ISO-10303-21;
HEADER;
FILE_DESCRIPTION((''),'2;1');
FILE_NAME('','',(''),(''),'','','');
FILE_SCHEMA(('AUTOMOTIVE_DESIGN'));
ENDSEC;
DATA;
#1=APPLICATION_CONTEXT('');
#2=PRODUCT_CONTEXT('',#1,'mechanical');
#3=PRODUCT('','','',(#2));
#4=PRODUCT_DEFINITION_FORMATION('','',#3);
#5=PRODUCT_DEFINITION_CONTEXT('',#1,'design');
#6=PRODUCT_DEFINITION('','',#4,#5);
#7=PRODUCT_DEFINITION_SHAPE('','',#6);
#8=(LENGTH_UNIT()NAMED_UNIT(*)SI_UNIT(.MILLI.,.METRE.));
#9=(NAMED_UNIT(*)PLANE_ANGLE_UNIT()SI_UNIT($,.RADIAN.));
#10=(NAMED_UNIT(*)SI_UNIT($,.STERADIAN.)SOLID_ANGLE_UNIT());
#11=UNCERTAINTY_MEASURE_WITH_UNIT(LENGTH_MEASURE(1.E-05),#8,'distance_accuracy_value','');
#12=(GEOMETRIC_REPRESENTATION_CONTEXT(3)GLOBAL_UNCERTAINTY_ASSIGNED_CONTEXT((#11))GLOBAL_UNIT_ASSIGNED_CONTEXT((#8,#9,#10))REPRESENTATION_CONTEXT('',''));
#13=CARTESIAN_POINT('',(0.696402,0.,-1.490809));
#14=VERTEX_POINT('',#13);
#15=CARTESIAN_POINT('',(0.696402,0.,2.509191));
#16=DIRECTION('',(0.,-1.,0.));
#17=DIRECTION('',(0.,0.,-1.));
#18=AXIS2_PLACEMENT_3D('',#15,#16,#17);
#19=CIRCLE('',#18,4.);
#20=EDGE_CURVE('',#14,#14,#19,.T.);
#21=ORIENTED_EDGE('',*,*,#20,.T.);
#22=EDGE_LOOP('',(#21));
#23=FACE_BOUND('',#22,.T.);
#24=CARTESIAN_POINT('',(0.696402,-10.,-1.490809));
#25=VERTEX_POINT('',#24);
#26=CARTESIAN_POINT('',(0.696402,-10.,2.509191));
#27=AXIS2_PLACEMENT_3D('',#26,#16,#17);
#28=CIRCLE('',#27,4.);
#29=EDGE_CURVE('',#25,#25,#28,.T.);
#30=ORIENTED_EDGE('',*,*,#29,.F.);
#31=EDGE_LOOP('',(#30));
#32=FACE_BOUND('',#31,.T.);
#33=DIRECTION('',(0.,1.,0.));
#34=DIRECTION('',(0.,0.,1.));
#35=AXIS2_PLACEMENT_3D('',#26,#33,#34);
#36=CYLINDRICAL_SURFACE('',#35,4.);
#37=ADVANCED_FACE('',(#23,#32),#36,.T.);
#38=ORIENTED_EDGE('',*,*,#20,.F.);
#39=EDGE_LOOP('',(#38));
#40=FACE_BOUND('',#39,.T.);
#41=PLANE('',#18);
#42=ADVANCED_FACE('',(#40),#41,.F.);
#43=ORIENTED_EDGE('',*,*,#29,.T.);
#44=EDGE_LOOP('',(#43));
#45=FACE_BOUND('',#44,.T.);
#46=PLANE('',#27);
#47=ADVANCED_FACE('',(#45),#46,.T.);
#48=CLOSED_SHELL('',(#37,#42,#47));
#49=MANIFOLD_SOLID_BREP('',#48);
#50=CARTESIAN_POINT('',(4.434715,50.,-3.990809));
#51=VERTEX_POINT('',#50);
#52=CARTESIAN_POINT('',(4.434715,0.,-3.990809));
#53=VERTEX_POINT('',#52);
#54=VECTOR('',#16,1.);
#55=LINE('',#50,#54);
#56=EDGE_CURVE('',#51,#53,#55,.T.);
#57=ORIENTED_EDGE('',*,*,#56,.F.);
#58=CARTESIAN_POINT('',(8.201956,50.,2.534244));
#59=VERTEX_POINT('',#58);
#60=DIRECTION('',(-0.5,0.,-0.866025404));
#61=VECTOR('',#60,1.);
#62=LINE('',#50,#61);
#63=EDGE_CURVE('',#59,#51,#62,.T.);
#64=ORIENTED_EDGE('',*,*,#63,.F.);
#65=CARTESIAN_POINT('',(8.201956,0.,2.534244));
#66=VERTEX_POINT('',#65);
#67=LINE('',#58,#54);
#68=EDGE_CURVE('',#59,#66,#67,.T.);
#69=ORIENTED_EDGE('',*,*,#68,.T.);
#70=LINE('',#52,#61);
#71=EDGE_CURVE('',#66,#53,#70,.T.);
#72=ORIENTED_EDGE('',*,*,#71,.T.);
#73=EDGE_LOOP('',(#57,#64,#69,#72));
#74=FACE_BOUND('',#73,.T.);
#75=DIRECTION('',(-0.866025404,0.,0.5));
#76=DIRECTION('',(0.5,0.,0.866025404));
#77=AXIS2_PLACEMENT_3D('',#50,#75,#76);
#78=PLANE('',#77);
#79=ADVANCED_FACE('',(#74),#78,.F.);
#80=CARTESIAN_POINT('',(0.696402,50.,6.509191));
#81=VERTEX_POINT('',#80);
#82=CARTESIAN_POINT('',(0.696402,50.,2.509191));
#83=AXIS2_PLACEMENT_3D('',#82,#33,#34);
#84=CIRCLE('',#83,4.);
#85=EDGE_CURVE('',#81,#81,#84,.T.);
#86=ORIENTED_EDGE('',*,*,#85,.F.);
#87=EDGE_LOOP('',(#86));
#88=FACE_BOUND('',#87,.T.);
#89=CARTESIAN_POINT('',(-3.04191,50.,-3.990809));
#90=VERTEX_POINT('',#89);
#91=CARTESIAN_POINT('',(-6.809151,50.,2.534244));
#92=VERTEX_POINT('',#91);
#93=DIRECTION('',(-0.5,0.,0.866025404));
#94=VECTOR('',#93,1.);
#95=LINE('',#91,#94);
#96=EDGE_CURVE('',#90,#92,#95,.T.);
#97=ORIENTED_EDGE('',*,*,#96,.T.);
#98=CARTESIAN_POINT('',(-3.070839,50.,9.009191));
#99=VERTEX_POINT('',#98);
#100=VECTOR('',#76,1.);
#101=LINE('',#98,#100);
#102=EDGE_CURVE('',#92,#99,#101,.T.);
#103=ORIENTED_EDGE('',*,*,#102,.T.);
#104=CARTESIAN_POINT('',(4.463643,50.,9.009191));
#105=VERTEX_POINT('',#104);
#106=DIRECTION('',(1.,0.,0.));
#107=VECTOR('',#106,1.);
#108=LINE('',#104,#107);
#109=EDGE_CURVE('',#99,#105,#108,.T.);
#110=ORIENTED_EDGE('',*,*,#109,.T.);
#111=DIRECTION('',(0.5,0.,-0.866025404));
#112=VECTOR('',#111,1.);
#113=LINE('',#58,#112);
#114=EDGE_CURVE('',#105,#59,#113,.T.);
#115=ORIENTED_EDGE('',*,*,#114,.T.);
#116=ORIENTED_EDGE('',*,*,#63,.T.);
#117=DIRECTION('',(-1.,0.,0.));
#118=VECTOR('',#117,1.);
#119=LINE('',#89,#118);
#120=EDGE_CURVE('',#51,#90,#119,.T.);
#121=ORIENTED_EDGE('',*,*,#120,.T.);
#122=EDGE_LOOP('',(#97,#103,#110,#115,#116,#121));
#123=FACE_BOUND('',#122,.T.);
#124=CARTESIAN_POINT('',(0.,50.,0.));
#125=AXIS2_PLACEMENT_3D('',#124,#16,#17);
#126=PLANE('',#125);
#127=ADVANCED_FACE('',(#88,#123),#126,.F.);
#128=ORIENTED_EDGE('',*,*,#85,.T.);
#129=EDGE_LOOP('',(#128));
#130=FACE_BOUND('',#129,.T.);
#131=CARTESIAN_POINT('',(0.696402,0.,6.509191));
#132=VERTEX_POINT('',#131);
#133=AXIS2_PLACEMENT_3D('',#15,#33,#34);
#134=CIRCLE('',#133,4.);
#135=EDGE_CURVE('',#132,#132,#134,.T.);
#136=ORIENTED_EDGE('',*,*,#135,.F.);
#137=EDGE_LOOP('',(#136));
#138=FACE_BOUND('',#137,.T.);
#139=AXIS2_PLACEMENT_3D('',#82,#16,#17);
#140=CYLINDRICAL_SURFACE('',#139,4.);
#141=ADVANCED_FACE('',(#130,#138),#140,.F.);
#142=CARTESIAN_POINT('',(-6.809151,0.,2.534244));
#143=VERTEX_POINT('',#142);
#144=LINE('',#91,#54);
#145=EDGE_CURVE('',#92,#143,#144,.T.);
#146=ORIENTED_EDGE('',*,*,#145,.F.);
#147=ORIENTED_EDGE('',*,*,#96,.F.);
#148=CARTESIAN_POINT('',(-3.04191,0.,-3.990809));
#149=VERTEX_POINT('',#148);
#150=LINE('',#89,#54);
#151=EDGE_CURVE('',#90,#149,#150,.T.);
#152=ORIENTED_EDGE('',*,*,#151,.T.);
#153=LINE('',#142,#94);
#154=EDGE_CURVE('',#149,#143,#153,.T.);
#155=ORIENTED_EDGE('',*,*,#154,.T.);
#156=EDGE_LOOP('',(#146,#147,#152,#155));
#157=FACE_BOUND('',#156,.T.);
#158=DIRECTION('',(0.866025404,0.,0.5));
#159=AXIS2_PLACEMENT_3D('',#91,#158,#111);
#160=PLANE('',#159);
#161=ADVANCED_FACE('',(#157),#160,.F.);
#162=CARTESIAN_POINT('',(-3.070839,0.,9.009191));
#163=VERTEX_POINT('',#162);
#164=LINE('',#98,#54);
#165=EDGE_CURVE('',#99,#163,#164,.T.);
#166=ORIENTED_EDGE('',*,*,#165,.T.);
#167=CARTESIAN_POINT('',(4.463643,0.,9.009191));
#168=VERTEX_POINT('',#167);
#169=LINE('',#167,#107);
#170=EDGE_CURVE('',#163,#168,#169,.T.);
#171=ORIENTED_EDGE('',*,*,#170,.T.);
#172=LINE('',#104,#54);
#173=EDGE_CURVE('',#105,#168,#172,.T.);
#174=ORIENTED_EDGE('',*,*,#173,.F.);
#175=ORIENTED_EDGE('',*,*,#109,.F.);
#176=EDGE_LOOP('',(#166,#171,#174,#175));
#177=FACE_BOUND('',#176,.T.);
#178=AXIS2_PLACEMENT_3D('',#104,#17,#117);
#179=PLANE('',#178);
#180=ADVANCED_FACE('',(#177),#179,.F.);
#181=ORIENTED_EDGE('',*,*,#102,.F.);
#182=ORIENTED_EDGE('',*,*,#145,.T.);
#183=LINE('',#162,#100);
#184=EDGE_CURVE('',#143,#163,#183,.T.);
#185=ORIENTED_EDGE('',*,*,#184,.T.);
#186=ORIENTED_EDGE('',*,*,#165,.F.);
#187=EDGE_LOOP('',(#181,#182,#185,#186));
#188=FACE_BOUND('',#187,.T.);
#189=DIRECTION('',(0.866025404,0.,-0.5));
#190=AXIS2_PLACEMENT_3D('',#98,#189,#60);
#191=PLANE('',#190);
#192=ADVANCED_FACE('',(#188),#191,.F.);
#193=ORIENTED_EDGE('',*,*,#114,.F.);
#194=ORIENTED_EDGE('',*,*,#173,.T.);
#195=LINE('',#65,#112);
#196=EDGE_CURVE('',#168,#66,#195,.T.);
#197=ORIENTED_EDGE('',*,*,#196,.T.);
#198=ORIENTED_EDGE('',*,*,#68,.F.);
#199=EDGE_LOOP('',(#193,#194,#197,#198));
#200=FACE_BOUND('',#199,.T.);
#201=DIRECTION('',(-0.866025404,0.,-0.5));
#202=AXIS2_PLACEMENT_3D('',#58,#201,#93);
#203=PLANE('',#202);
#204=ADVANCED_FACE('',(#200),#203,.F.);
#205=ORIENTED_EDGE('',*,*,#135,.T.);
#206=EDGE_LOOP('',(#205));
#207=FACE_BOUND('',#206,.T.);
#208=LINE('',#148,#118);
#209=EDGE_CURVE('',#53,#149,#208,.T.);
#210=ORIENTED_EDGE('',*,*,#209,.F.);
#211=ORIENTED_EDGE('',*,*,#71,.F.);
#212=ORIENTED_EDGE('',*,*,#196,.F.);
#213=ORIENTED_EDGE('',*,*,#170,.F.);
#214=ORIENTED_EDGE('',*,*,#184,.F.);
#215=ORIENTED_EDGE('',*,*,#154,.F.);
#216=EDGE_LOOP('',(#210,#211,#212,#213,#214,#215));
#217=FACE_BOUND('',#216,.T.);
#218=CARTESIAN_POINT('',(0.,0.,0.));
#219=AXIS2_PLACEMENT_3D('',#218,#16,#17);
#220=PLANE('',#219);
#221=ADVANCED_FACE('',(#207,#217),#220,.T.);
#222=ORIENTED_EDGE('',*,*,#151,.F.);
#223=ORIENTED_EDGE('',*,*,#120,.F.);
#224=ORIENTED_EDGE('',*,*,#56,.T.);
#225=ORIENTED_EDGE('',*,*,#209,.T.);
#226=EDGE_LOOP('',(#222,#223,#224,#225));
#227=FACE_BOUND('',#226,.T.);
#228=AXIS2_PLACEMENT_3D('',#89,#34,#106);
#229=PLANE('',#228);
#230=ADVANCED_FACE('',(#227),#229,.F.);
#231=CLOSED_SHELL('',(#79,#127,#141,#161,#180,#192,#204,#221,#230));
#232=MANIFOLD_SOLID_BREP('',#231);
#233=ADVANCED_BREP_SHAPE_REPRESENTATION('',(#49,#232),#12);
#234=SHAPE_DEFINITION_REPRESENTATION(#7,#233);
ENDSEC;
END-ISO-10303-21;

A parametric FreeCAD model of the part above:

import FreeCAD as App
import Part
import Sketcher
from FreeCAD import Vector
Q = App.Units.Quantity

doc = App.newDocument("Part")
params = doc.addObject("Spreadsheet::Sheet", "Params")
for row, (alias, value) in enumerate([
    ("sketch1_diameter", "8 mm"),
    ("pad1_length", "50 mm"),
    ("sketch2_diameter", "8 mm"),
    ("pad2_length", "10 mm"),
], start=1):
    params.set(f"A{row}", alias)
    params.set(f"B{row}", "=" + value)
    params.setAlias(f"B{row}", alias)

body = doc.addObject("PartDesign::Body", "Body")

sketch1 = doc.addObject("Sketcher::SketchObject", "Sketch")
body.addObject(sketch1)
sketch1.AttachmentSupport = (doc.XZ_Plane, [""])
sketch1.MapMode = "FlatFace"
sketch1.addGeometry(Part.LineSegment(Vector(4.4, -4, 0), Vector(-3, -4, 0)), False)
sketch1.addGeometry(Part.LineSegment(Vector(-3, -4, 0), Vector(-6.8, 2.5, 0)), False)
sketch1.addGeometry(Part.LineSegment(Vector(-6.8, 2.5, 0), Vector(-3.1, 9, 0)), False)
sketch1.addGeometry(Part.LineSegment(Vector(-3.1, 9, 0), Vector(4.5, 9, 0)), False)
sketch1.addGeometry(Part.LineSegment(Vector(4.5, 9, 0), Vector(8.2, 2.5, 0)), False)
sketch1.addGeometry(Part.LineSegment(Vector(8.2, 2.5, 0), Vector(4.4, -4, 0)), False)
sketch1.addGeometry(Part.Circle(Vector(0.7, 2.5, 0), Vector(0, 0, 1), 4), False)
sketch1.addConstraint(Sketcher.Constraint("Coincident", 0, 2, 1, 1))
sketch1.addConstraint(Sketcher.Constraint("Coincident", 1, 2, 2, 1))
sketch1.addConstraint(Sketcher.Constraint("Coincident", 2, 2, 3, 1))
sketch1.addConstraint(Sketcher.Constraint("Coincident", 3, 2, 4, 1))
sketch1.addConstraint(Sketcher.Constraint("Coincident", 4, 2, 5, 1))
sketch1.addConstraint(Sketcher.Constraint("Coincident", 5, 2, 0, 1))
sketch1.addConstraint(Sketcher.Constraint("Horizontal", 0))
sketch1.addConstraint(Sketcher.Constraint("Horizontal", 3))
sketch1.addConstraint(Sketcher.Constraint("Parallel", 1, 4))
sketch1.addConstraint(Sketcher.Constraint("Parallel", 2, 5))
sketch1.addConstraint(Sketcher.Constraint("Horizontal", 1, 2, 4, 2))
sketch1.addConstraint(Sketcher.Constraint("Equal", 2, 4))
sketch1.addConstraint(Sketcher.Constraint("Diameter", 6, 8.0))
sketch1.addConstraint(Sketcher.Constraint("Angle", 1, Q("120 deg")))
sketch1.addConstraint(Sketcher.Constraint("DistanceY", 0, 2, 2, 2, 13.0))
sketch1.addConstraint(Sketcher.Constraint("DistanceY", 0, 2, 6, 3, 6.5))
sketch1.addConstraint(Sketcher.Constraint("DistanceX", 0, 2, 0, 1, 7.476625))
sketch1.addConstraint(Sketcher.Constraint("DistanceX", 3, 1, 3, 2, 7.534482))
sketch1.addConstraint(Sketcher.Constraint("DistanceY", -1, 1, 6, 3, 2.509191))
sketch1.addConstraint(Sketcher.Constraint("DistanceX", 0, 2, -1, 1, 3.04191))
sketch1.addConstraint(Sketcher.Constraint("DistanceX", 2, 2, 6, 3, 3.767241))
sketch1.setExpression("Constraints[12]", "Params.sketch1_diameter")
pad1 = doc.addObject("PartDesign::Pad", "Pad")
body.addObject(pad1)
pad1.Profile = sketch1
pad1.setExpression("Length", "Params.pad1_length")
pad1.Reversed = True
body2 = doc.addObject("PartDesign::Body", "Body001")

sketch2 = doc.addObject("Sketcher::SketchObject", "Sketch001")
body2.addObject(sketch2)
sketch2.AttachmentSupport = (doc.getObject("XZ_Plane001"), [""])
sketch2.MapMode = "FlatFace"
sketch2.addGeometry(Part.Circle(Vector(0.7, 2.5, 0), Vector(0, 0, 1), 4), False)
sketch2.addConstraint(Sketcher.Constraint("Diameter", 0, 8.0))
sketch2.addConstraint(Sketcher.Constraint("DistanceY", -1, 1, 0, 3, 2.509191))
sketch2.addConstraint(Sketcher.Constraint("DistanceX", -1, 1, 0, 3, 0.696402))
sketch2.setExpression("Constraints[0]", "Params.sketch2_diameter")
pad2 = doc.addObject("PartDesign::Pad", "Pad001")
body2.addObject(pad2)
pad2.Profile = sketch2
pad2.setExpression("Length", "Params.pad2_length")

doc.recompute()
